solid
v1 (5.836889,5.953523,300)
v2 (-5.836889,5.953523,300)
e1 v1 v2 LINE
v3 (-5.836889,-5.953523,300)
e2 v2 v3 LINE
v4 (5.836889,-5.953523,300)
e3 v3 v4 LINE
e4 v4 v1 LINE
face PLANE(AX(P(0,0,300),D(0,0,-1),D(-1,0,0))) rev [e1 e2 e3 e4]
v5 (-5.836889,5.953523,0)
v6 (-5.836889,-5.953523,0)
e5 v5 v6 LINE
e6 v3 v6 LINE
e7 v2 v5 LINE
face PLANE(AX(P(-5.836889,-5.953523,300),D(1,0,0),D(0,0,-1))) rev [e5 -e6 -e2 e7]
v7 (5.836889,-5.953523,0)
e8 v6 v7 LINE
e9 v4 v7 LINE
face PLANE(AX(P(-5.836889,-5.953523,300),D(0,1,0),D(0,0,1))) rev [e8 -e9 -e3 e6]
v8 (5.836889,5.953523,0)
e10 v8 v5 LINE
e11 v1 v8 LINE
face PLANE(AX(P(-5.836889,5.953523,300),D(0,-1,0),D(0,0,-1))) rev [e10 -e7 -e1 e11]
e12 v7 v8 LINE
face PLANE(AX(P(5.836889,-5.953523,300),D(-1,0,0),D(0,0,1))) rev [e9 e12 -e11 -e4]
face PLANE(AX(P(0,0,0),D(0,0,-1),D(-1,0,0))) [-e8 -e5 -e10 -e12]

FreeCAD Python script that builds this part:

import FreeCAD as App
import Part
import Sketcher
Q = App.Units.Quantity

doc = App.newDocument("Part")
body = doc.addObject("PartDesign::Body", "Body")

sketch1 = body.newObject("Sketcher::SketchObject", "Sketch")
sketch1.AttachmentSupport = (doc.getObject("XY_Plane"), [""])
sketch1.MapMode = "FlatFace"
sketch1.addGeometry(Part.LineSegment(App.Vector(-6, 6, 0), App.Vector(-6, -6, 0)), False)
sketch1.addGeometry(Part.LineSegment(App.Vector(-6, -6, 0), App.Vector(6, -6, 0)), False)
sketch1.addGeometry(Part.LineSegment(App.Vector(6, -6, 0), App.Vector(6, 6, 0)), False)
sketch1.addGeometry(Part.LineSegment(App.Vector(6, 6, 0), App.Vector(-6, 6, 0)), False)
sketch1.addConstraint(Sketcher.Constraint("Coincident", 0, 2, 1, 1))
sketch1.addConstraint(Sketcher.Constraint("Coincident", 1, 2, 2, 1))
sketch1.addConstraint(Sketcher.Constraint("Coincident", 2, 2, 3, 1))
sketch1.addConstraint(Sketcher.Constraint("Coincident", 3, 2, 0, 1))
sketch1.addConstraint(Sketcher.Constraint("Vertical", 0))
sketch1.addConstraint(Sketcher.Constraint("Horizontal", 1))
sketch1.addConstraint(Sketcher.Constraint("Vertical", 2))
sketch1.addConstraint(Sketcher.Constraint("Horizontal", 3))
sketch1.addConstraint(Sketcher.Constraint("Symmetric", 0, 2, 2, 2, -1, 1))
sketch1.addConstraint(Sketcher.Constraint("DistanceX", 1, 1, 1, 2, Q("11.673778 mm")))
sketch1.addConstraint(Sketcher.Constraint("DistanceY", 0, 2, 0, 1, Q("11.907046 mm")))
pad1 = body.newObject("PartDesign::Pad", "Pad")
pad1.Profile = sketch1
pad1.Length = 300

doc.recompute()
